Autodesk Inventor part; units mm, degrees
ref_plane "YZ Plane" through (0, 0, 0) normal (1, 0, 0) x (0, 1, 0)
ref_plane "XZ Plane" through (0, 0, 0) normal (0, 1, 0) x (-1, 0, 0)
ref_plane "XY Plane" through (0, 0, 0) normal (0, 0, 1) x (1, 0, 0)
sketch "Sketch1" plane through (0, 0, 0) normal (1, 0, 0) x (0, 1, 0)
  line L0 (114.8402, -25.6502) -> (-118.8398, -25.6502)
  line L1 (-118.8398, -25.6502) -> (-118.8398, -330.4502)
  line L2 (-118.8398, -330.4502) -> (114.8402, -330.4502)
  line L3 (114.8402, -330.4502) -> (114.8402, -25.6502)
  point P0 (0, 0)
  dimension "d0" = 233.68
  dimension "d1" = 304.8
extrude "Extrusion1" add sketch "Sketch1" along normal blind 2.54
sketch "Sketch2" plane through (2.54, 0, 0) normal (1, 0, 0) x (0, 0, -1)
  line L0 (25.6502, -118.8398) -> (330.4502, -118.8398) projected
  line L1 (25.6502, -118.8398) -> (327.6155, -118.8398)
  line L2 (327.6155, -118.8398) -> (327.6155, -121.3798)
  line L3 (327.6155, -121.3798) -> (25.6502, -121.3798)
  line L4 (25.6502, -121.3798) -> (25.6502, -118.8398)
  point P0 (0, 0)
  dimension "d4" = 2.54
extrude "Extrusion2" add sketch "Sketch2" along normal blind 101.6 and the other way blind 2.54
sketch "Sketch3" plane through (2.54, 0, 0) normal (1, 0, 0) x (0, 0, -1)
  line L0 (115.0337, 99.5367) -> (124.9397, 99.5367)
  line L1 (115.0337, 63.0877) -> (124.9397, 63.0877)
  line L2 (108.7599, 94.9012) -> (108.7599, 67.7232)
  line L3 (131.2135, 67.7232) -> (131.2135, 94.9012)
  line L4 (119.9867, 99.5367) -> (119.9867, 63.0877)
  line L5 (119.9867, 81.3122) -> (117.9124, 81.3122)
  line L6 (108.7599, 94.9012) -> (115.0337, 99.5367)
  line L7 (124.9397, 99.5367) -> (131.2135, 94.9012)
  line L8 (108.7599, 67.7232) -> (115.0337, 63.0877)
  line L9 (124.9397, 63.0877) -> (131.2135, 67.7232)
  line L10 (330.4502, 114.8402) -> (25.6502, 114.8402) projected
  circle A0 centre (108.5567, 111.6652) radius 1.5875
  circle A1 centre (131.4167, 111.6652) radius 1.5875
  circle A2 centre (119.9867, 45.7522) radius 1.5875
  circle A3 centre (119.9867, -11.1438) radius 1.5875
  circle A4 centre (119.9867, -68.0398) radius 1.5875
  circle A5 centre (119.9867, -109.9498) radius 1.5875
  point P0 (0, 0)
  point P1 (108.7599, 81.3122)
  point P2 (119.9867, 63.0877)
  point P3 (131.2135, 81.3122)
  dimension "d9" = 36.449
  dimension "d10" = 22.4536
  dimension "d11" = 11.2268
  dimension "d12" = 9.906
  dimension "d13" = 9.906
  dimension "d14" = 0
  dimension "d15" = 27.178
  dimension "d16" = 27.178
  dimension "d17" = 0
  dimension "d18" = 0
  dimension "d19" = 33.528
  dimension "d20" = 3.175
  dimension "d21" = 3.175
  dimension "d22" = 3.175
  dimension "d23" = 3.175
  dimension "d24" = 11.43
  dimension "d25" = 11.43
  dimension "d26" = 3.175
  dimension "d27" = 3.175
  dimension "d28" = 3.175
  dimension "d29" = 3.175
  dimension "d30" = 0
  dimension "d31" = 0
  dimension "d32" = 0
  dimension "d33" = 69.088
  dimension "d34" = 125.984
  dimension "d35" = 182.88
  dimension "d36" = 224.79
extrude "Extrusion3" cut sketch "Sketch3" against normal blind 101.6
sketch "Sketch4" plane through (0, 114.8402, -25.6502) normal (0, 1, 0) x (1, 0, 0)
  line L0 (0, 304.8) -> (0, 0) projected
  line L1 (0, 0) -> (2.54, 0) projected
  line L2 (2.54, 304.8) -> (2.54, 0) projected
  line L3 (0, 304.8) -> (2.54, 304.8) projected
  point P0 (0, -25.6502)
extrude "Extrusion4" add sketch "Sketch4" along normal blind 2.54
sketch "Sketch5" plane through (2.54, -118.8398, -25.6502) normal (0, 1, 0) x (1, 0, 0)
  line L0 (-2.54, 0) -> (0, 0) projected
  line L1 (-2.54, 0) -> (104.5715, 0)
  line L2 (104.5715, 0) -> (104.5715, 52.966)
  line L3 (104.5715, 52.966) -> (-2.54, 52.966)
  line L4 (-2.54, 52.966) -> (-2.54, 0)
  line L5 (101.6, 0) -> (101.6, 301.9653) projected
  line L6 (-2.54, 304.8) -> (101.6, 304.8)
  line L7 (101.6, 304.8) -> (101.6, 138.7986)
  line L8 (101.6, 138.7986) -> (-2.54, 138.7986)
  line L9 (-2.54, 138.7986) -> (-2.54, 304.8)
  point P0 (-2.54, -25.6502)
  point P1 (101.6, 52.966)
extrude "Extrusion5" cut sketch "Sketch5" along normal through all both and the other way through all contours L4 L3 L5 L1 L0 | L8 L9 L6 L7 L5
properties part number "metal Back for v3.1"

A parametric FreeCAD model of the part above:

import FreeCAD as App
import Part
import Sketcher

V = App.Vector
Q = App.Units.Quantity

doc = App.newDocument("Part")
body = doc.addObject("PartDesign::Body", "Body")

# Sketch on YZ plane
sketch1 = doc.addObject("Sketcher::SketchObject", "Sketch")
body.addObject(sketch1)
sketch1.AttachmentSupport = (doc.YZ_Plane, [""])
sketch1.MapMode = "FlatFace"
sketch1.addGeometry(Part.LineSegment(V(115, -330, 0), V(115, -26, 0)), False)
sketch1.addGeometry(Part.LineSegment(V(115, -26, 0), V(-119, -26, 0)), False)
sketch1.addGeometry(Part.LineSegment(V(-119, -26, 0), V(-119, -330, 0)), False)
sketch1.addGeometry(Part.LineSegment(V(-119, -330, 0), V(115, -330, 0)), False)
sketch1.addConstraint(Sketcher.Constraint("Coincident", 0, 2, 1, 1))
sketch1.addConstraint(Sketcher.Constraint("Coincident", 1, 2, 2, 1))
sketch1.addConstraint(Sketcher.Constraint("Coincident", 2, 2, 3, 1))
sketch1.addConstraint(Sketcher.Constraint("Coincident", 3, 2, 0, 1))
sketch1.addConstraint(Sketcher.Constraint("Vertical", 0))
sketch1.addConstraint(Sketcher.Constraint("Horizontal", 1))
sketch1.addConstraint(Sketcher.Constraint("Vertical", 2))
sketch1.addConstraint(Sketcher.Constraint("Horizontal", 3))
sketch1.addConstraint(Sketcher.Constraint("DistanceY", 0, 1, 0, 2, Q("12 in")))
sketch1.addConstraint(Sketcher.Constraint("DistanceX", 1, 2, 1, 1, Q("9.2 in")))
sketch1.addConstraint(Sketcher.Constraint("DistanceX", -1, 1, 0, 2, Q("114.8402 mm")))
sketch1.addConstraint(Sketcher.Constraint("DistanceY", 0, 2, -1, 1, Q("25.6502 mm")))
pad1 = doc.addObject("PartDesign::Pad", "Pad")
body.addObject(pad1)
pad1.Profile = sketch1
pad1.Length = Q("0.1 in")

# Sketch on YZ plane
sketch2 = doc.addObject("Sketcher::SketchObject", "Sketch001")
body.addObject(sketch2)
sketch2.AttachmentSupport = (doc.YZ_Plane, [""])
sketch2.MapMode = "FlatFace"
sketch2.AttachmentOffset = App.Placement(V(0, 0, 0.1 * 25.4), App.Rotation())
sketch2.addGeometry(Part.LineSegment(V(-118.8, -327.6, 0), V(-118.8, -25.7, 0)), False)
sketch2.addGeometry(Part.LineSegment(V(-118.8, -25.7, 0), V(-121.4, -25.7, 0)), False)
sketch2.addGeometry(Part.LineSegment(V(-121.4, -25.7, 0), V(-121.4, -327.6, 0)), False)
sketch2.addGeometry(Part.LineSegment(V(-121.4, -327.6, 0), V(-118.8, -327.6, 0)), False)
sketch2.addConstraint(Sketcher.Constraint("Coincident", 0, 2, 1, 1))
sketch2.addConstraint(Sketcher.Constraint("Coincident", 1, 2, 2, 1))
sketch2.addConstraint(Sketcher.Constraint("Coincident", 2, 2, 3, 1))
sketch2.addConstraint(Sketcher.Constraint("Coincident", 3, 2, 0, 1))
sketch2.addConstraint(Sketcher.Constraint("Vertical", 0))
sketch2.addConstraint(Sketcher.Constraint("Horizontal", 1))
sketch2.addConstraint(Sketcher.Constraint("Vertical", 2))
sketch2.addConstraint(Sketcher.Constraint("Horizontal", 3))
sketch2.addConstraint(Sketcher.Constraint("DistanceX", 1, 2, 1, 1, Q("0.1 in")))
sketch2.addConstraint(Sketcher.Constraint("DistanceY", 0, 1, 0, 2, Q("11.8884 in")))
sketch2.addConstraint(Sketcher.Constraint("DistanceX", 0, 2, -1, 1, Q("118.8398 mm")))
sketch2.addConstraint(Sketcher.Constraint("DistanceY", 0, 2, -1, 1, Q("25.6502 mm")))
pad2 = doc.addObject("PartDesign::Pad", "Pad001")
body.addObject(pad2)
pad2.Profile = sketch2
pad2.Type = "TwoLengths"
pad2.Length = Q("4 in")
pad2.Length2 = Q("0.1 in")

# Sketch on YZ plane
sketch3 = doc.addObject("Sketcher::SketchObject", "Sketch002")
body.addObject(sketch3)
sketch3.AttachmentSupport = (doc.YZ_Plane, [""])
sketch3.MapMode = "FlatFace"
sketch3.AttachmentOffset = App.Placement(V(0, 0, 0.1 * 25.4), App.Rotation())
sketch3.addGeometry(Part.LineSegment(V(99.5, -115, 0), V(94.9, -108.8, 0)), False)
sketch3.addGeometry(Part.LineSegment(V(94.9, -108.8, 0), V(67.7, -108.8, 0)), False)
sketch3.addGeometry(Part.LineSegment(V(67.7, -108.8, 0), V(63.1, -115, 0)), False)
sketch3.addGeometry(Part.LineSegment(V(63.1, -115, 0), V(63.1, -124.9, 0)), False)
sketch3.addGeometry(Part.LineSegment(V(63.1, -124.9, 0), V(67.7, -131.2, 0)), False)
sketch3.addGeometry(Part.LineSegment(V(67.7, -131.2, 0), V(94.9, -131.2, 0)), False)
sketch3.addGeometry(Part.LineSegment(V(94.9, -131.2, 0), V(99.5, -124.9, 0)), False)
sketch3.addGeometry(Part.LineSegment(V(99.5, -124.9, 0), V(99.5, -115, 0)), False)
sketch3.addGeometry(Part.Circle(V(111.7, -108.6, 0), V(0, 0, 1), 1.6), False)
sketch3.addGeometry(Part.Circle(V(111.7, -131.4, 0), V(0, 0, 1), 1.6), False)
sketch3.addGeometry(Part.Circle(V(45.8, -120, 0), V(0, 0, 1), 1.6), False)
sketch3.addGeometry(Part.Circle(V(-11.1, -120, 0), V(0, 0, 1), 1.6), False)
sketch3.addGeometry(Part.Circle(V(-68, -120, 0), V(0, 0, 1), 1.6), False)
sketch3.addGeometry(Part.Circle(V(-109.9, -120, 0), V(0, 0, 1), 1.6), False)
sketch3.addConstraint(Sketcher.Constraint("Coincident", 0, 2, 1, 1))
sketch3.addConstraint(Sketcher.Constraint("Coincident", 1, 2, 2, 1))
sketch3.addConstraint(Sketcher.Constraint("Coincident", 2, 2, 3, 1))
sketch3.addConstraint(Sketcher.Constraint("Coincident", 3, 2, 4, 1))
sketch3.addConstraint(Sketcher.Constraint("Coincident", 4, 2, 5, 1))
sketch3.addConstraint(Sketcher.Constraint("Coincident", 5, 2, 6, 1))
sketch3.addConstraint(Sketcher.Constraint("Coincident", 6, 2, 7, 1))
sketch3.addConstraint(Sketcher.Constraint("Coincident", 7, 2, 0, 1))
sketch3.addConstraint(Sketcher.Constraint("Horizontal", 1))
sketch3.addConstraint(Sketcher.Constraint("Vertical", 3))
sketch3.addConstraint(Sketcher.Constraint("Horizontal", 5))
sketch3.addConstraint(Sketcher.Constraint("Vertical", 7))
sketch3.addConstraint(Sketcher.Constraint("Equal", 8, 9))
sketch3.addConstraint(Sketcher.Constraint("Equal", 9, 10))
sketch3.addConstraint(Sketcher.Constraint("Equal", 10, 11))
sketch3.addConstraint(Sketcher.Constraint("Equal", 11, 12))
sketch3.addConstraint(Sketcher.Constraint("Equal", 12, 13))
sketch3.addConstraint(Sketcher.Constraint("Parallel", 0, 4))
sketch3.addConstraint(Sketcher.Constraint("Parallel", 2, 6))
sketch3.addConstraint(Sketcher.Constraint("Horizontal", 10, 3, 11, 3))
sketch3.addConstraint(Sketcher.Constraint("Horizontal", 11, 3, 12, 3))
sketch3.addConstraint(Sketcher.Constraint("Horizontal", 12, 3, 13, 3))
sketch3.addConstraint(Sketcher.Constraint("Horizontal", 3, 2, 6, 2))
sketch3.addConstraint(Sketcher.Constraint("Horizontal", 2, 2, 7, 2))
sketch3.addConstraint(Sketcher.Constraint("Vertical", 8, 3, 9, 3))
sketch3.addConstraint(Sketcher.Constraint("Vertical", 1, 2, 4, 2))
sketch3.addConstraint(Sketcher.Constraint("Vertical", 0, 2, 5, 2))
sketch3.addConstraint(Sketcher.Constraint("Diameter", 8, Q("0.125 in")))
sketch3.addConstraint(Sketcher.Constraint("DistanceX", 1, 2, 1, 1, Q("1.07 in")))
sketch3.addConstraint(Sketcher.Constraint("DistanceY", 3, 2, 3, 1, Q("0.39 in")))
sketch3.addConstraint(Sketcher.Constraint("DistanceY", 10, 3, 8, 3, Q("0.45 in")))
sketch3.addConstraint(Sketcher.Constraint("DistanceY", 9, 3, 10, 3, Q("0.45 in")))
sketch3.addConstraint(Sketcher.Constraint("DistanceY", 10, 3, 0, 2, Q("0.442 in")))
sketch3.addConstraint(Sketcher.Constraint("DistanceY", 4, 2, 1, 2, Q("0.884 in")))
sketch3.addConstraint(Sketcher.Constraint("Angle", 0, Q("126.4594 deg")))
sketch3.addConstraint(Sketcher.Constraint("DistanceX", 11, 3, 10, 3, Q("2.24 in")))
sketch3.addConstraint(Sketcher.Constraint("DistanceX", 12, 3, 11, 3, Q("2.24 in")))
sketch3.addConstraint(Sketcher.Constraint("DistanceX", 13, 3, 12, 3, Q("1.65 in")))
sketch3.addConstraint(Sketcher.Constraint("DistanceX", 0, 2, 8, 3, Q("0.66 in")))
sketch3.addConstraint(Sketcher.Constraint("DistanceX", 10, 3, 8, 3, Q("2.595 in")))
sketch3.addConstraint(Sketcher.Constraint("DistanceX", -1, 1, 8, 3, Q("111.6652 mm")))
sketch3.addConstraint(Sketcher.Constraint("DistanceY", 8, 3, -1, 1, Q("108.5567 mm")))
pocket1 = doc.addObject("PartDesign::Pocket", "Pocket")
body.addObject(pocket1)
pocket1.Profile = sketch3
pocket1.Length = Q("4 in")

# Sketch on XZ plane
sketch4 = doc.addObject("Sketcher::SketchObject", "Sketch003")
body.addObject(sketch4)
sketch4.AttachmentSupport = (doc.XZ_Plane, [""])
sketch4.MapMode = "FlatFace"
sketch4.AttachmentOffset = App.Placement(V(0, 0, -114.8402), App.Rotation())
sketch4.addGeometry(Part.LineSegment(V(2.5, -330.5, 0), V(0, -330.5, 0)), False)
sketch4.addGeometry(Part.LineSegment(V(0, -330.5, 0), V(0, -25.7, 0)), False)
sketch4.addGeometry(Part.LineSegment(V(0, -25.7, 0), V(2.5, -25.7, 0)), False)
sketch4.addGeometry(Part.LineSegment(V(2.5, -25.7, 0), V(2.5, -330.5, 0)), False)
sketch4.addConstraint(Sketcher.Constraint("Coincident", 0, 2, 1, 1))
sketch4.addConstraint(Sketcher.Constraint("Coincident", 1, 2, 2, 1))
sketch4.addConstraint(Sketcher.Constraint("Coincident", 2, 2, 3, 1))
sketch4.addConstraint(Sketcher.Constraint("Coincident", 3, 2, 0, 1))
sketch4.addConstraint(Sketcher.Constraint("Horizontal", 0))
sketch4.addConstraint(Sketcher.Constraint("Vertical", 1))
sketch4.addConstraint(Sketcher.Constraint("Horizontal", 2))
sketch4.addConstraint(Sketcher.Constraint("Vertical", 3))
sketch4.addConstraint(Sketcher.Constraint("PointOnObject", 0, 2, -2))
sketch4.addConstraint(Sketcher.Constraint("DistanceY", 1, 1, 1, 2, Q("12 in")))
sketch4.addConstraint(Sketcher.Constraint("DistanceX", 0, 2, 0, 1, Q("0.1 in")))
sketch4.addConstraint(Sketcher.Constraint("DistanceY", 0, 2, -1, 1, Q("330.4502 mm")))
pad3 = doc.addObject("PartDesign::Pad", "Pad002")
body.addObject(pad3)
pad3.Profile = sketch4
pad3.Length = Q("0.1 in")
pad3.Reversed = True

# Sketch on XZ plane
sketch5 = doc.addObject("Sketcher::SketchObject", "Sketch004")
body.addObject(sketch5)
sketch5.AttachmentSupport = (doc.XZ_Plane, [""])
sketch5.MapMode = "FlatFace"
sketch5.AttachmentOffset = App.Placement(V(0, 0, 118.8398), App.Rotation())
sketch5.addGeometry(Part.LineSegment(V(0, -79, 0), V(0, -26, 0)), False)
sketch5.addGeometry(Part.LineSegment(V(0, -26, 0), V(104, -26, 0)), False)
sketch5.addGeometry(Part.LineSegment(V(104, -26, 0), V(104, -79, 0)), False)
sketch5.addGeometry(Part.LineSegment(V(104, -79, 0), V(0, -79, 0)), False)
sketch5.addGeometry(Part.LineSegment(V(0, -164, 0), V(104, -164, 0)), False)
sketch5.addGeometry(Part.LineSegment(V(104, -164, 0), V(104, -330, 0)), False)
sketch5.addGeometry(Part.LineSegment(V(104, -330, 0), V(0, -330, 0)), False)
sketch5.addGeometry(Part.LineSegment(V(0, -330, 0), V(0, -164, 0)), False)
sketch5.addConstraint(Sketcher.Constraint("Coincident", 0, 2, 1, 1))
sketch5.addConstraint(Sketcher.Constraint("Coincident", 1, 2, 2, 1))
sketch5.addConstraint(Sketcher.Constraint("Coincident", 2, 2, 3, 1))
sketch5.addConstraint(Sketcher.Constraint("Coincident", 3, 2, 0, 1))
sketch5.addConstraint(Sketcher.Constraint("Coincident", 4, 2, 5, 1))
sketch5.addConstraint(Sketcher.Constraint("Coincident", 5, 2, 6, 1))
sketch5.addConstraint(Sketcher.Constraint("Coincident", 6, 2, 7, 1))
sketch5.addConstraint(Sketcher.Constraint("Coincident", 7, 2, 4, 1))
sketch5.addConstraint(Sketcher.Constraint("Vertical", 0))
sketch5.addConstraint(Sketcher.Constraint("Horizontal", 1))
sketch5.addConstraint(Sketcher.Constraint("Vertical", 2))
sketch5.addConstraint(Sketcher.Constraint("Horizontal", 3))
sketch5.addConstraint(Sketcher.Constraint("Horizontal", 4))
sketch5.addConstraint(Sketcher.Constraint("Vertical", 5))
sketch5.addConstraint(Sketcher.Constraint("Horizontal", 6))
sketch5.addConstraint(Sketcher.Constraint("Vertical", 7))
sketch5.addConstraint(Sketcher.Constraint("PointOnObject", 0, 2, -2))
sketch5.addConstraint(Sketcher.Constraint("PointOnObject", 6, 2, -2))
sketch5.addConstraint(Sketcher.Constraint("Vertical", 2, 2, 4, 2))
sketch5.addConstraint(Sketcher.Constraint("DistanceX", 1, 1, 1, 2, Q("4.1 in")))
sketch5.addConstraint(Sketcher.Constraint("DistanceY", 5, 2, 1, 2, Q("12 in")))
sketch5.addConstraint(Sketcher.Constraint("DistanceY", 5, 2, 5, 1, Q("6.5355 in")))
sketch5.addConstraint(Sketcher.Constraint("DistanceY", 0, 1, 0, 2, Q("52.966 mm")))
sketch5.addConstraint(Sketcher.Constraint("DistanceY", 0, 2, -1, 1, Q("25.6502 mm")))
pocket2 = doc.addObject("PartDesign::Pocket", "Pocket001")
body.addObject(pocket2)
pocket2.Profile = sketch5
pocket2.Type = "ThroughAll"
pocket2.Midplane = True

doc.recompute()
